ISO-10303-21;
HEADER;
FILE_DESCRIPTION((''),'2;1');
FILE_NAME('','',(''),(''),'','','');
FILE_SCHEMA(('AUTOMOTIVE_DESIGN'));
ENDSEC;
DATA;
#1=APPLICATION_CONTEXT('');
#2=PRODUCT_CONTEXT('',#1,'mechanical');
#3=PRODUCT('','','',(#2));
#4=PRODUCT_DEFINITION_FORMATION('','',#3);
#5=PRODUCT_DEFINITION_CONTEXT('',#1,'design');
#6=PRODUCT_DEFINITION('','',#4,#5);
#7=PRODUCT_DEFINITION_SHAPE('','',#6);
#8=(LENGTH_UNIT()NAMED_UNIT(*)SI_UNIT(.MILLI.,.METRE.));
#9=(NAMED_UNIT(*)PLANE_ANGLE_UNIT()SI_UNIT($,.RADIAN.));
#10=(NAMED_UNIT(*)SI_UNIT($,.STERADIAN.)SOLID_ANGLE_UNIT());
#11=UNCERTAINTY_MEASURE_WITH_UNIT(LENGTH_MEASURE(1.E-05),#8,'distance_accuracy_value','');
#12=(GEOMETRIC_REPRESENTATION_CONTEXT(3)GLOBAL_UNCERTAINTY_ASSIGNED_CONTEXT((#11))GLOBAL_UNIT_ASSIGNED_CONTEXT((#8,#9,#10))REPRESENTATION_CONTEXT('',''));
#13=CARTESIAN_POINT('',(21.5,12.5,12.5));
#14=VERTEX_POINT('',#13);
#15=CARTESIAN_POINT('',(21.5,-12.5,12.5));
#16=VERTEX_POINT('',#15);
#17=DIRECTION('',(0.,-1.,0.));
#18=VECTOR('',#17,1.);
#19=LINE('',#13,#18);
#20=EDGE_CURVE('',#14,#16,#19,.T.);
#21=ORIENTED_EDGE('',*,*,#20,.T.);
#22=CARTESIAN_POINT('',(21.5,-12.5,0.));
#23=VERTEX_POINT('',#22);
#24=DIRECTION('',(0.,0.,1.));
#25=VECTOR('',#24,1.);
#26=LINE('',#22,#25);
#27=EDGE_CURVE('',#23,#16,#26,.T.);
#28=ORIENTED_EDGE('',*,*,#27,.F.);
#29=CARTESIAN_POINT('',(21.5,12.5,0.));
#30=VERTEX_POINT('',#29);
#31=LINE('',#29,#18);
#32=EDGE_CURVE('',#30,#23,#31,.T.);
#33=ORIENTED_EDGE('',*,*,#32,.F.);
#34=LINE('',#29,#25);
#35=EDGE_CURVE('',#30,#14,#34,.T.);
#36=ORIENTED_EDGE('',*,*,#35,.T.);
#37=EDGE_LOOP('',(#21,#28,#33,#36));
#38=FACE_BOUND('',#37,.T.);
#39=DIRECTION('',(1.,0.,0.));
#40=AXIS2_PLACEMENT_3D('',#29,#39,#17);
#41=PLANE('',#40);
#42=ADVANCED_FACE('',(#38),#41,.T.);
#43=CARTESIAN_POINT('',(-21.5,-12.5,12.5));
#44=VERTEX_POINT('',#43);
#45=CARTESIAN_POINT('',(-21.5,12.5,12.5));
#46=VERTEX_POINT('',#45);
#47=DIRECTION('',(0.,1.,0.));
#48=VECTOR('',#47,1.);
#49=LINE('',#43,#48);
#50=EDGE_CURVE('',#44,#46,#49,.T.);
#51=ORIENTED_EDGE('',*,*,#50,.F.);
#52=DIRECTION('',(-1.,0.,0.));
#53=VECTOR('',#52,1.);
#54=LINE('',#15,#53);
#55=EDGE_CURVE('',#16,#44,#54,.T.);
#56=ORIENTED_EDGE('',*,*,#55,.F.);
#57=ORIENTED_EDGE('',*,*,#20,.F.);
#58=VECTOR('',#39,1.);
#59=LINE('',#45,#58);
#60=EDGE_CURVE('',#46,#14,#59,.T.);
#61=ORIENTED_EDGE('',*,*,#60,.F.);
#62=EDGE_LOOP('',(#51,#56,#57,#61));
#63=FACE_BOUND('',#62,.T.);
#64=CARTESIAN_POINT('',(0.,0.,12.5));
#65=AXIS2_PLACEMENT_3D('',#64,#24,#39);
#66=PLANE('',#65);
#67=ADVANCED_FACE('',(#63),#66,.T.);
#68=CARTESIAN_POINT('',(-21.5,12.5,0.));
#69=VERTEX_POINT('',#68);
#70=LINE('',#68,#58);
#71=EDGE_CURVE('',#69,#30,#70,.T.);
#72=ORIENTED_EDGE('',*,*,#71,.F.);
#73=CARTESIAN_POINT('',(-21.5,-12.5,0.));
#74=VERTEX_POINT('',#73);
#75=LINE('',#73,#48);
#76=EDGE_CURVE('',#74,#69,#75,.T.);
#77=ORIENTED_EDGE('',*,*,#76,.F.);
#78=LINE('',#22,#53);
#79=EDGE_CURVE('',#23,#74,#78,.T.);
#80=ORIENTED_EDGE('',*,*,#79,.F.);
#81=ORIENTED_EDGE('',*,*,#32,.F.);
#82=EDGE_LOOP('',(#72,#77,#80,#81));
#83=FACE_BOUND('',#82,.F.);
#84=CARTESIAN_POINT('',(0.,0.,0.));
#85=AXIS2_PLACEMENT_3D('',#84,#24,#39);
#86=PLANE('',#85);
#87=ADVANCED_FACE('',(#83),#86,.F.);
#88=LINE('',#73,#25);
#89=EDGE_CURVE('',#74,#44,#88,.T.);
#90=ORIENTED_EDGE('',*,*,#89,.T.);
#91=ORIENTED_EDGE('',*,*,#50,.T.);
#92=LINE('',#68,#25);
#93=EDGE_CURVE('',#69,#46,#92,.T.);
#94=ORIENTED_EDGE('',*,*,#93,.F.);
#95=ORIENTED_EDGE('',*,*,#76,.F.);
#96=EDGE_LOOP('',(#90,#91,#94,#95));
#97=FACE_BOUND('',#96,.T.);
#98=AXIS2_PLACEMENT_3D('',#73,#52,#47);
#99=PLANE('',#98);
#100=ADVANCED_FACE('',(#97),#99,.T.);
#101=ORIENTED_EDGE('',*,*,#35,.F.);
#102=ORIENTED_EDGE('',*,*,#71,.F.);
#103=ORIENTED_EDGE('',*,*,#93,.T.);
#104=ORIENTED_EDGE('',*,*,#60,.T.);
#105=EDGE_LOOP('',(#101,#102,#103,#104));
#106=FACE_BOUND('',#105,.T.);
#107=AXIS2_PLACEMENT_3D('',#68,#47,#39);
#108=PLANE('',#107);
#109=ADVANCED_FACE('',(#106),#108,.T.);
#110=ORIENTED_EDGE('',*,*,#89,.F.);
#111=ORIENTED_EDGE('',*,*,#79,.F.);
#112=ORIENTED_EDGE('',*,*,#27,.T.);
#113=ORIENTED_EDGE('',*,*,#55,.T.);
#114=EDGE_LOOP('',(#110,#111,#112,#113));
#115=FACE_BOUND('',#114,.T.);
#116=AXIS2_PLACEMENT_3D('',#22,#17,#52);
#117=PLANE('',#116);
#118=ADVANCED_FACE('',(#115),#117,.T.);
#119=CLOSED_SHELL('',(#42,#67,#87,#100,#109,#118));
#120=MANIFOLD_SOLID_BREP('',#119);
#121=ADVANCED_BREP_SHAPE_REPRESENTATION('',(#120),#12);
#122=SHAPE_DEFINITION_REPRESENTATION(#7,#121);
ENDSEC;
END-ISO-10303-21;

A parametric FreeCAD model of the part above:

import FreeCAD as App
import Part
import Sketcher
Q = App.Units.Quantity


def add_polygon(sketch, points):
    """Adds a closed chain of lines whose ends are joined by coincident constraints."""
    first, n = sketch.GeometryCount, len(points)
    for a, b in zip(points, points[1:] + points[:1]):
        sketch.addGeometry(Part.LineSegment(App.Vector(*a, 0), App.Vector(*b, 0)), False)
    for i in range(n):
        sketch.addConstraint(Sketcher.Constraint("Coincident", first + i, 2, first + (i + 1) % n, 1))

doc = App.newDocument("Part")
params = doc.addObject("Spreadsheet::Sheet", "Params")
for row, (alias, value) in enumerate([
    ("sketch1_width", "43 mm"),
    ("sketch1_height", "25 mm"),
    ("pad1_length", "12.5 mm"),
], start=1):
    params.set(f"A{row}", alias)
    params.set(f"B{row}", "=" + value)
    params.setAlias(f"B{row}", alias)

body = doc.addObject("PartDesign::Body", "Body")

sketch1 = doc.addObject("Sketcher::SketchObject", "Sketch")
body.addObject(sketch1)
sketch1.AttachmentSupport = (doc.XY_Plane, [""])
sketch1.MapMode = "FlatFace"
add_polygon(sketch1, [(22, 12), (-22, 12), (-22, -12), (22, -12)])
sketch1.addConstraint(Sketcher.Constraint("Horizontal", 0))
sketch1.addConstraint(Sketcher.Constraint("Vertical", 1))
sketch1.addConstraint(Sketcher.Constraint("Horizontal", 2))
sketch1.addConstraint(Sketcher.Constraint("Vertical", 3))
sketch1.addConstraint(Sketcher.Constraint("Symmetric", 0, 2, 2, 2, -1, 1))
sketch1.addConstraint(Sketcher.Constraint("DistanceX", 0, 2, 0, 1, Q("43 mm")))
sketch1.addConstraint(Sketcher.Constraint("DistanceY", 1, 2, 1, 1, Q("25 mm")))
sketch1.setExpression("Constraints[9]", "Params.sketch1_width")
sketch1.setExpression("Constraints[10]", "Params.sketch1_height")
pad1 = doc.addObject("PartDesign::Pad", "Pad")
body.addObject(pad1)
pad1.Profile = sketch1
pad1.setExpression("Length", "Params.pad1_length")

doc.recompute()
